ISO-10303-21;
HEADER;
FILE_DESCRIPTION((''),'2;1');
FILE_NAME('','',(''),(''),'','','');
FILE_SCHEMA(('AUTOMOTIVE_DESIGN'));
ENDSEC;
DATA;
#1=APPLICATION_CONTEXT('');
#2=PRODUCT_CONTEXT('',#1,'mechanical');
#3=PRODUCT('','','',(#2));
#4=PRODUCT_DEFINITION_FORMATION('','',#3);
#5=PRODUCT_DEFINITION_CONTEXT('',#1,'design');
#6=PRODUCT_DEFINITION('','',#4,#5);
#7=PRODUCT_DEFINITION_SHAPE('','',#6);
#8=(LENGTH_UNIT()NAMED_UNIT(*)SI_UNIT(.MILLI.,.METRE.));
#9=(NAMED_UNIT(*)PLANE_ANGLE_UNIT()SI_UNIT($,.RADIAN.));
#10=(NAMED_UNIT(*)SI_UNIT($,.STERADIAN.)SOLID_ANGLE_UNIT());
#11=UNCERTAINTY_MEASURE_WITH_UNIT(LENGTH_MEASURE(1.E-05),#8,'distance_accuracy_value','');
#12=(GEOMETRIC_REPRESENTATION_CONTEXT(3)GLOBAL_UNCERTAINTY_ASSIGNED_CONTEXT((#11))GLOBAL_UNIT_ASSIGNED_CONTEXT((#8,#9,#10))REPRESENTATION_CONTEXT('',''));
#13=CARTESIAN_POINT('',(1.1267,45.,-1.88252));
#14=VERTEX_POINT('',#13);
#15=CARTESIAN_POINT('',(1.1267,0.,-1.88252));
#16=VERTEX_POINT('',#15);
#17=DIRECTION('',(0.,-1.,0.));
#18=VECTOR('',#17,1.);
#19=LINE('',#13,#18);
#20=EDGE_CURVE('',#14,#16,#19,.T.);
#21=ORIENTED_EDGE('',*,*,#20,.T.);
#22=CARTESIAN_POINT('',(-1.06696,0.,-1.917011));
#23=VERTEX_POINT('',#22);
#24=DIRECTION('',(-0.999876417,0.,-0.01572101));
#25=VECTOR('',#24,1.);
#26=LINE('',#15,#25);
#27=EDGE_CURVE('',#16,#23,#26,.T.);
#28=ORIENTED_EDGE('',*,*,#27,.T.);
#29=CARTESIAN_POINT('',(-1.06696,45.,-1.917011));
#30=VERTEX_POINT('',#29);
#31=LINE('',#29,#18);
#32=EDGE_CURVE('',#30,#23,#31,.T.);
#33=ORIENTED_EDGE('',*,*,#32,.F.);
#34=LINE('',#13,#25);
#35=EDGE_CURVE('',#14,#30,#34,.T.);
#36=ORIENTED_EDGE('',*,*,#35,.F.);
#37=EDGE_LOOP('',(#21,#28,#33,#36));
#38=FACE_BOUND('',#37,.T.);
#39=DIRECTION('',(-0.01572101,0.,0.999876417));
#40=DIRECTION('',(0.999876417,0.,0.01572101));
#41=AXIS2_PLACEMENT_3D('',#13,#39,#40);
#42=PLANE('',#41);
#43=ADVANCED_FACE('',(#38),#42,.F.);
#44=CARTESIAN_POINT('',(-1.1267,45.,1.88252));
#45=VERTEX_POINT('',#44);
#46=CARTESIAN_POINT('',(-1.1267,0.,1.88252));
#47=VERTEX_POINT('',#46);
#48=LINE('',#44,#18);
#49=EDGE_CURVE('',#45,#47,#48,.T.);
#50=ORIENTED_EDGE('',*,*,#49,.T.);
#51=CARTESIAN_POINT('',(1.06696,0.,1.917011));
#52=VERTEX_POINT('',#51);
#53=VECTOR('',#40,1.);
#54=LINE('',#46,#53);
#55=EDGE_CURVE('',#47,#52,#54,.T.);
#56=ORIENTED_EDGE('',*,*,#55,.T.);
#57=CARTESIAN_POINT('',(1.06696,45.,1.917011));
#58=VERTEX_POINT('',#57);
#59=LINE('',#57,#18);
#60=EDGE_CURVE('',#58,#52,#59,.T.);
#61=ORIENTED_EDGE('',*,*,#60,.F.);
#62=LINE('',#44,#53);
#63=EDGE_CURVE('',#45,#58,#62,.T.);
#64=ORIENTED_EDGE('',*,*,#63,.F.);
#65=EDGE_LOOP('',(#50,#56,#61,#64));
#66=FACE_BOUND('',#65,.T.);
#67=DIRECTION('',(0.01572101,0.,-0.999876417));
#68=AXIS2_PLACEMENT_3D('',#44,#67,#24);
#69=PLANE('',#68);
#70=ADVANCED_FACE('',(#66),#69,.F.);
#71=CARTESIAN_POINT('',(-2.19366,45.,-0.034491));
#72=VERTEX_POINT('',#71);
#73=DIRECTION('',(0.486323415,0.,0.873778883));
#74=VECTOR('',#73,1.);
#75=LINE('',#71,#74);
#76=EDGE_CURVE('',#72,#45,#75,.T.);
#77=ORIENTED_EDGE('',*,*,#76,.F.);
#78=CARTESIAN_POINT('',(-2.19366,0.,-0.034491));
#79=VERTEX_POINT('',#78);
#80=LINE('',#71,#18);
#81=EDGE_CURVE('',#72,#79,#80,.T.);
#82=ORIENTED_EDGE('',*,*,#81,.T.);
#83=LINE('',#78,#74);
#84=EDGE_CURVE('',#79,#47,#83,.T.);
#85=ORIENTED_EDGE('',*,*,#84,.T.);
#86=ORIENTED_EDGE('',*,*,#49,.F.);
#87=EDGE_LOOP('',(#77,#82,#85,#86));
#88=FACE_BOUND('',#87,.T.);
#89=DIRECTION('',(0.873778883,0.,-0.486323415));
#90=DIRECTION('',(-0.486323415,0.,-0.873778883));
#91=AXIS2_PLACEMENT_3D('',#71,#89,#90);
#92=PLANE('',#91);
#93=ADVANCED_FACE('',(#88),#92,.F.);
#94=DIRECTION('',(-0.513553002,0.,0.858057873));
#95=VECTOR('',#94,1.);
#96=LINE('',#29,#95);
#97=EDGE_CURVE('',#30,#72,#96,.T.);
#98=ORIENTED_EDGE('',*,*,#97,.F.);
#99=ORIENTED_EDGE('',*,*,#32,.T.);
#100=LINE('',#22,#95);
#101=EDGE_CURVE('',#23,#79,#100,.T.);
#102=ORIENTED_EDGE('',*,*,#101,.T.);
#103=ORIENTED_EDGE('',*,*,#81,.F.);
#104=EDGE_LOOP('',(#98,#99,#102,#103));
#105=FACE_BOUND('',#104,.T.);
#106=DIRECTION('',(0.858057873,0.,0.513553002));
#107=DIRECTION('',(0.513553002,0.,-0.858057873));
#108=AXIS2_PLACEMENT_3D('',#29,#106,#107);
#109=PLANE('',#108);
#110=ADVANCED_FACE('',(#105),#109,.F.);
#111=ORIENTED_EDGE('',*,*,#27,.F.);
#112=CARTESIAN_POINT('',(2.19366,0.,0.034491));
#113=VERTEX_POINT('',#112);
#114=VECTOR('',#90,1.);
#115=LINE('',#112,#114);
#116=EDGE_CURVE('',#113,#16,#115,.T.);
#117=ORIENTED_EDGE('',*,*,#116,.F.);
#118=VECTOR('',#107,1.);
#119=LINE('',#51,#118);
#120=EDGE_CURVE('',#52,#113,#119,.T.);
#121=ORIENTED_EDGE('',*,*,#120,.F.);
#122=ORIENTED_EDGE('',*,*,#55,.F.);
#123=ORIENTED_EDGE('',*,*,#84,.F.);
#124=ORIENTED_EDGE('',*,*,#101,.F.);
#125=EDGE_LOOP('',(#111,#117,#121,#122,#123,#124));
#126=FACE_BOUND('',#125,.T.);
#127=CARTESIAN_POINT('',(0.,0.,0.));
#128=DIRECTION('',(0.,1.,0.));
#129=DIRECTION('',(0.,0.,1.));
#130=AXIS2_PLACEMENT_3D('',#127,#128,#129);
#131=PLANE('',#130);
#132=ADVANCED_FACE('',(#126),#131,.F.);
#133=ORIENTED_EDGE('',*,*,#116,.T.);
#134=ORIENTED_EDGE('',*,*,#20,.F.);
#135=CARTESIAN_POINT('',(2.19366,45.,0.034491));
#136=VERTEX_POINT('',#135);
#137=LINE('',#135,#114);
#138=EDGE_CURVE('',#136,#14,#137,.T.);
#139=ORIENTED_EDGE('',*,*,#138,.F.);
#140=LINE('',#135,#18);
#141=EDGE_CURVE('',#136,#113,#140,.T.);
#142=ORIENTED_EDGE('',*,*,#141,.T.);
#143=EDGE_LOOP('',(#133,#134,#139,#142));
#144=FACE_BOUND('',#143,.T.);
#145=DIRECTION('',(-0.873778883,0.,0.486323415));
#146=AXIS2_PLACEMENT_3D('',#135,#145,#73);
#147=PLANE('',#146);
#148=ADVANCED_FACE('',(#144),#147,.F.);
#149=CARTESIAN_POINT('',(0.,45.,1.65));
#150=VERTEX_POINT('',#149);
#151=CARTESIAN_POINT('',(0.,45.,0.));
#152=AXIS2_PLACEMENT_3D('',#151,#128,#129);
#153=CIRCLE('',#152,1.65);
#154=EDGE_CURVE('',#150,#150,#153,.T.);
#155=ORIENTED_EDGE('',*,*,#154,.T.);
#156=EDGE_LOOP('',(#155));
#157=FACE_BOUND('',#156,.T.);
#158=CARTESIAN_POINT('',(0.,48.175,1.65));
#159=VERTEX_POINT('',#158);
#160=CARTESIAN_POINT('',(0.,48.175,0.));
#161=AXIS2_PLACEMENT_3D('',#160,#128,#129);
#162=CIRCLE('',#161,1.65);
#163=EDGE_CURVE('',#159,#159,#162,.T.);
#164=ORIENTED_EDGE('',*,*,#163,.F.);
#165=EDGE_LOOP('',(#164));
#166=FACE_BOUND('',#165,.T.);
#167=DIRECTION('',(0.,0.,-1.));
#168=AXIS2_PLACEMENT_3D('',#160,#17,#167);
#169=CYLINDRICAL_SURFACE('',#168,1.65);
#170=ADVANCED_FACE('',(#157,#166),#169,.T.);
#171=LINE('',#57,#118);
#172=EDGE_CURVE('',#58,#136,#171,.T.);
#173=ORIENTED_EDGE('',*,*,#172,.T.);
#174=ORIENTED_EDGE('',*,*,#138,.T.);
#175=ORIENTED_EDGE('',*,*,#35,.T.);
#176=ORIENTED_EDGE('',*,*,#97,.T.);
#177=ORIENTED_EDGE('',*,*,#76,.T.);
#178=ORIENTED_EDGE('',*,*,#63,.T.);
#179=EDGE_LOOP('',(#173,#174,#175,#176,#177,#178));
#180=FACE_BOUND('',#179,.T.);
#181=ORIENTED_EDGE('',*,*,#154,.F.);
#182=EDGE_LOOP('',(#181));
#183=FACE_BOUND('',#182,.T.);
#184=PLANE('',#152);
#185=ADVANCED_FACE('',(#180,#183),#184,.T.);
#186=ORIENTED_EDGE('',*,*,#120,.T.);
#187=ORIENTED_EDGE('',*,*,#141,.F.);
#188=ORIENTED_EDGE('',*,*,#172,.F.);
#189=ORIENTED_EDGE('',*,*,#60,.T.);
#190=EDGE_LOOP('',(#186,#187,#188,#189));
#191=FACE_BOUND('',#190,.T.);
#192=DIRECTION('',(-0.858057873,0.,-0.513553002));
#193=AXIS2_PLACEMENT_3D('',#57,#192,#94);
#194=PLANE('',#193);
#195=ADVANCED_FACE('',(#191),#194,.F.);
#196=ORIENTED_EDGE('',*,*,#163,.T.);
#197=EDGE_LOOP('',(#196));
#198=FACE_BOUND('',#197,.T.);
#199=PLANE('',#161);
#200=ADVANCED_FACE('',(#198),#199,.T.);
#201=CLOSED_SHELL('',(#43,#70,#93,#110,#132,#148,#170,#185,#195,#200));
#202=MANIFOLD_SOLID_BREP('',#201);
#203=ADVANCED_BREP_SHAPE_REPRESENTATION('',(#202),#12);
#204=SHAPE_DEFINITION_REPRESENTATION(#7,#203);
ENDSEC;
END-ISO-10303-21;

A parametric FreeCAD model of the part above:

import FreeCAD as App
import Part
import Sketcher
Q = App.Units.Quantity

doc = App.newDocument("Part")
params = doc.addObject("Spreadsheet::Sheet", "Params")
for row, (alias, value) in enumerate([
    ("pad1_length", "45 mm"),
    ("sketch2_diameter", "3.3 mm"),
    ("pad2_length", "3.175 mm"),
], start=1):
    params.set(f"A{row}", alias)
    params.set(f"B{row}", "=" + value)
    params.setAlias(f"B{row}", alias)

body = doc.addObject("PartDesign::Body", "Body")

sketch1 = body.newObject("Sketcher::SketchObject", "Sketch")
sketch1.AttachmentSupport = (doc.getObject("XZ_Plane"), [""])
sketch1.MapMode = "FlatFace"
sketch1.addGeometry([
    Part.LineSegment(App.Vector(1.1, 1.9, 0), App.Vector(2.2, 0, 0)),
    Part.LineSegment(App.Vector(2.2, 0, 0), App.Vector(1.1, -1.9, 0)),
    Part.LineSegment(App.Vector(1.1, -1.9, 0), App.Vector(-1.1, -1.9, 0)),
    Part.LineSegment(App.Vector(-1.1, -1.9, 0), App.Vector(-2.2, 0, 0)),
    Part.LineSegment(App.Vector(-2.2, 0, 0), App.Vector(-1.1, 1.9, 0)),
    Part.LineSegment(App.Vector(-1.1, 1.9, 0), App.Vector(1.1, 1.9, 0)),
], False)
sketch1.addConstraint([
    Sketcher.Constraint("Coincident", 0, 2, 1, 1),
    Sketcher.Constraint("Coincident", 1, 2, 2, 1),
    Sketcher.Constraint("Coincident", 2, 2, 3, 1),
    Sketcher.Constraint("Coincident", 3, 2, 4, 1),
    Sketcher.Constraint("Coincident", 4, 2, 5, 1),
    Sketcher.Constraint("Coincident", 5, 2, 0, 1),
    Sketcher.Constraint("Symmetric", 0, 2, 3, 2, -1, 1),
    Sketcher.Constraint("Symmetric", 1, 2, 4, 2, -1, 1),
    Sketcher.Constraint("Symmetric", 2, 2, 5, 2, -1, 1),
    Sketcher.Constraint("Equal", 0, 1),
    Sketcher.Constraint("Equal", 1, 2),
    Sketcher.Constraint("DistanceX", -1, 1, 1, 2, Q("1.1267 mm")),
    Sketcher.Constraint("DistanceY", 2, 2, 0, 2, Q("1.951501 mm")),
    Sketcher.Constraint("DistanceX", 3, 2, 2, 2, Q("1.1267 mm")),
    Sketcher.Constraint("Distance", 0, Q("2.193931 mm")),
])
pad1 = body.newObject("PartDesign::Pad", "Pad")
pad1.Profile = sketch1
pad1.setExpression("Length", "Params.pad1_length")
pad1.Reversed = True

sketch2 = body.newObject("Sketcher::SketchObject", "Sketch001")
sketch2.AttachmentSupport = (doc.getObject("XZ_Plane"), [""])
sketch2.MapMode = "FlatFace"
sketch2.AttachmentOffset = App.Placement(App.Vector(0, 0, -45), App.Rotation())
sketch2.addGeometry(Part.Circle(App.Vector(0, 0, 0), App.Vector(0, 0, 1), 1.6), False)
sketch2.addConstraint([
    Sketcher.Constraint("Coincident", 0, 3, -1, 1),
    Sketcher.Constraint("Diameter", 0, Q("3.3 mm")),
])
sketch2.setExpression("Constraints[1]", "Params.sketch2_diameter")
pad2 = body.newObject("PartDesign::Pad", "Pad001")
pad2.Profile = sketch2
pad2.setExpression("Length", "Params.pad2_length")
pad2.Reversed = True

doc.recompute()
